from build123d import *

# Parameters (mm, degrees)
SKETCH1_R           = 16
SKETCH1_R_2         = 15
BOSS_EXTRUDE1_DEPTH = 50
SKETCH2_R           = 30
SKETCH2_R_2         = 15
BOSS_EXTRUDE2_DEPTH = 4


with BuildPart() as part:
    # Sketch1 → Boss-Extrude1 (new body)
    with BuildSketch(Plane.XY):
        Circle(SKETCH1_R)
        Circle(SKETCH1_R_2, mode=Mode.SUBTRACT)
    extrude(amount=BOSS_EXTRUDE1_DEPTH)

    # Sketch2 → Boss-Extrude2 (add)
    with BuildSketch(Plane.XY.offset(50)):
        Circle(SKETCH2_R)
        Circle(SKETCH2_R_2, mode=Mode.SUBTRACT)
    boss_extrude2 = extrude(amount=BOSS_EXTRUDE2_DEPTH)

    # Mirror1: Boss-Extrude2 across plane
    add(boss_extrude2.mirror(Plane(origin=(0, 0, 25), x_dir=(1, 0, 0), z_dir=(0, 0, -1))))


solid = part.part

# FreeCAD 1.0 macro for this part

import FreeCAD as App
import Part
import Sketcher

V = App.Vector
Q = App.Units.Quantity

doc = App.newDocument("Part")
body = doc.addObject("PartDesign::Body", "Body")

# Sketch on XY plane
sketch1 = doc.addObject("Sketcher::SketchObject", "Sketch")
body.addObject(sketch1)
sketch1.AttachmentSupport = (doc.XY_Plane, [""])
sketch1.MapMode = "FlatFace"
sketch1.addGeometry(Part.Circle(V(0, 0, 0), V(0, 0, 1), 16), False)
sketch1.addGeometry(Part.Circle(V(0, 0, 0), V(0, 0, 1), 15), False)
sketch1.addConstraint(Sketcher.Constraint("Coincident", 0, 3, -1, 1))
sketch1.addConstraint(Sketcher.Constraint("Coincident", 1, 3, -1, 1))
sketch1.addConstraint(Sketcher.Constraint("Diameter", 0, Q("32 mm")))
sketch1.addConstraint(Sketcher.Constraint("Diameter", 1, Q("30 mm")))
pad1 = doc.addObject("PartDesign::Pad", "Pad")
body.addObject(pad1)
pad1.Profile = sketch1
pad1.Length = 50

# Sketch on XY plane
sketch2 = doc.addObject("Sketcher::SketchObject", "Sketch001")
body.addObject(sketch2)
sketch2.AttachmentSupport = (doc.XY_Plane, [""])
sketch2.MapMode = "FlatFace"
sketch2.AttachmentOffset = App.Placement(V(0, 0, 50), App.Rotation())
sketch2.addGeometry(Part.Circle(V(0, 0, 0), V(0, 0, 1), 30), False)
sketch2.addGeometry(Part.Circle(V(0, 0, 0), V(0, 0, 1), 15), False)
sketch2.addConstraint(Sketcher.Constraint("Coincident", 0, 3, -1, 1))
sketch2.addConstraint(Sketcher.Constraint("Coincident", 1, 3, -1, 1))
sketch2.addConstraint(Sketcher.Constraint("Diameter", 0, Q("60 mm")))
sketch2.addConstraint(Sketcher.Constraint("Diameter", 1, Q("30 mm")))
pad2 = doc.addObject("PartDesign::Pad", "Pad001")
body.addObject(pad2)
pad2.Profile = sketch2
pad2.Length = 4
doc.recompute()

datumplane = doc.addObject("PartDesign::Plane", "DatumPlane")
body.addObject(datumplane)
datumplane.AttachmentSupport = (doc.XY_Plane, [""])
datumplane.MapMode = "FlatFace"
datumplane.AttachmentOffset = App.Placement(V(0, 0, 25), App.Rotation())
mirrored = doc.addObject("PartDesign::Mirrored", "Mirrored")
body.addObject(mirrored)
mirrored.Originals = [pad2]
mirrored.MirrorPlane = (datumplane, [""])
body.Tip = mirrored

doc.recompute()
